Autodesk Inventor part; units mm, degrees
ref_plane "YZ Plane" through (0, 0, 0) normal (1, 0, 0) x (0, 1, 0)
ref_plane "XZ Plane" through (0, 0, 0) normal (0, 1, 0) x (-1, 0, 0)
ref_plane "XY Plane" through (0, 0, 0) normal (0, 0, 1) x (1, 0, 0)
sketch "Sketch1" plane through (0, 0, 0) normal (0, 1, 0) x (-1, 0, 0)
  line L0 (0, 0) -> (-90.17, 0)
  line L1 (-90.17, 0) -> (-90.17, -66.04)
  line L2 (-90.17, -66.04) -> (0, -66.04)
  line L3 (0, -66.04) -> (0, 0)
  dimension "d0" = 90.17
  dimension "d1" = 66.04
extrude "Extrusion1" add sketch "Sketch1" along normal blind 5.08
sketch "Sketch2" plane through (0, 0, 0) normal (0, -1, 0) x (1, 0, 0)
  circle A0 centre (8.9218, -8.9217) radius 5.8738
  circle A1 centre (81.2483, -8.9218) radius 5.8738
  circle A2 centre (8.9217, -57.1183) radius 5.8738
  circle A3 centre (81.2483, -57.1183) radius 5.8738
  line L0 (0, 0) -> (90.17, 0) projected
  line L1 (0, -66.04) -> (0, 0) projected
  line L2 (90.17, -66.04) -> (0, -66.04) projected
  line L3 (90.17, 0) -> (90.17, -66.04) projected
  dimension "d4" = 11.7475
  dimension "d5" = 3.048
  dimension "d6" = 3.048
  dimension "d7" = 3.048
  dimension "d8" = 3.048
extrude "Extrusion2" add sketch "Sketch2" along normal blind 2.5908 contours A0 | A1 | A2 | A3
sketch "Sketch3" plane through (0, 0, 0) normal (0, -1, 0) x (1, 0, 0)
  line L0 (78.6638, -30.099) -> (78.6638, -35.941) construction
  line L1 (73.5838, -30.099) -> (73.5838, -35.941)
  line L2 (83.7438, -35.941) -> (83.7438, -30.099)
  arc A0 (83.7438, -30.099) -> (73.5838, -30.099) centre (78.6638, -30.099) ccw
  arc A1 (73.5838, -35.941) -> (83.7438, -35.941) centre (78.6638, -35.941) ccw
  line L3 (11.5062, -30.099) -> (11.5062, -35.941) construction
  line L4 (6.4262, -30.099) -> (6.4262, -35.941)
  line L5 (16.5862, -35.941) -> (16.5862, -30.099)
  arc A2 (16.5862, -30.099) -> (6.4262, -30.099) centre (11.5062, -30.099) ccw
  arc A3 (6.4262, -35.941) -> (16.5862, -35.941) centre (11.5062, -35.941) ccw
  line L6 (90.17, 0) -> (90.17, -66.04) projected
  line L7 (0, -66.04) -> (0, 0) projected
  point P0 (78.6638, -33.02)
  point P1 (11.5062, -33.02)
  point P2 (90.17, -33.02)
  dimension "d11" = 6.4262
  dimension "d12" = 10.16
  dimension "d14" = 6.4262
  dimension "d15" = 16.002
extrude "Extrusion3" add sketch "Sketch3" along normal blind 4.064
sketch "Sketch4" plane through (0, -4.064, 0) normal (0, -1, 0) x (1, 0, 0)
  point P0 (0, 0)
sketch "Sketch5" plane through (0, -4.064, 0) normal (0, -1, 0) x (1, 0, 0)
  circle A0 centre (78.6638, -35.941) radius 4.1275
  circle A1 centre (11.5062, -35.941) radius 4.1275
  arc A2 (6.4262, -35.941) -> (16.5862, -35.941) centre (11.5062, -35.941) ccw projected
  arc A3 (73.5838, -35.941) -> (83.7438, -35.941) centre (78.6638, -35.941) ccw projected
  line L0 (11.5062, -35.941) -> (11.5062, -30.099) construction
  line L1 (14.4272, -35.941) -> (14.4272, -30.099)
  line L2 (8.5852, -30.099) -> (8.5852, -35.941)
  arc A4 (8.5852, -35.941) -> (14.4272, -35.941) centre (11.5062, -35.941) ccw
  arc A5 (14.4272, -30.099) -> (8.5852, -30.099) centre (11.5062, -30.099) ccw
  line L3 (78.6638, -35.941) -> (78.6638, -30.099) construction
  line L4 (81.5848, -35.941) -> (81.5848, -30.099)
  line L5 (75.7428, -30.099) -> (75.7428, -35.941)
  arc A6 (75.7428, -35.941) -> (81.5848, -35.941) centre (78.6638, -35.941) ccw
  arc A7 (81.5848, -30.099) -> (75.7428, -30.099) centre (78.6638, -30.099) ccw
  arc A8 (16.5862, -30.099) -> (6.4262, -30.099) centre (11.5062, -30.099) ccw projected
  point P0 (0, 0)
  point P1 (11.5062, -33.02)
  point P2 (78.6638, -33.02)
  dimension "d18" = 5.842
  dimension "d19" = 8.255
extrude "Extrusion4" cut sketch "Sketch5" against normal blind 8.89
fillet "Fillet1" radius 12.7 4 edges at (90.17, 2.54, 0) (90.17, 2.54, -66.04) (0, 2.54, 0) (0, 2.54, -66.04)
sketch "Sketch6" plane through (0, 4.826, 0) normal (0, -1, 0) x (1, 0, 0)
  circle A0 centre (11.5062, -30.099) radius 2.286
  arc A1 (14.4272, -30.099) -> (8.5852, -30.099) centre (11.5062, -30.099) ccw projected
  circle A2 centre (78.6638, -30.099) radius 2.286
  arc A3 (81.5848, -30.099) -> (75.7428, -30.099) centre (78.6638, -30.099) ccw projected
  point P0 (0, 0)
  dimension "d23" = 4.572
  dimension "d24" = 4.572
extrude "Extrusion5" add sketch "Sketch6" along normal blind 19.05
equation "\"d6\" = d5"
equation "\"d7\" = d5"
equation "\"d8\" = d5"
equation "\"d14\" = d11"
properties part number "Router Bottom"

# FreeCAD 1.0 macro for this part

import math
import FreeCAD as App
import Part
import Sketcher
from FreeCAD import Vector
Q = App.Units.Quantity


def edges_at(feature, points):
    """Names of the edges that pass closest to the given points."""
    edges = feature.Shape.Edges
    near = lambda p: min(range(len(edges)), key=lambda i: edges[i].distToShape(Part.Vertex(*p))[0])
    return sorted({f"Edge{near(p) + 1}" for p in points})


def add_polygon(sketch, points):
    """Adds a closed chain of lines whose ends are joined by coincident constraints."""
    first, n = sketch.GeometryCount, len(points)
    for a, b in zip(points, points[1:] + points[:1]):
        sketch.addGeometry(Part.LineSegment(App.Vector(*a, 0), App.Vector(*b, 0)), False)
    for i in range(n):
        sketch.addConstraint(Sketcher.Constraint("Coincident", first + i, 2, first + (i + 1) % n, 1))

doc = App.newDocument("Part")
body = doc.addObject("PartDesign::Body", "Body")

sketch1 = doc.addObject("Sketcher::SketchObject", "Sketch")
body.addObject(sketch1)
sketch1.AttachmentSupport = (doc.XZ_Plane, [""])
sketch1.MapMode = "FlatFace"
add_polygon(sketch1, [(0, -66), (0, 0), (90, 0), (90, -66)])
sketch1.addConstraint([
    Sketcher.Constraint("Vertical", 0),
    Sketcher.Constraint("Horizontal", 1),
    Sketcher.Constraint("Vertical", 2),
    Sketcher.Constraint("Horizontal", 3),
    Sketcher.Constraint("Coincident", 0, 2, -1, 1),
    Sketcher.Constraint("DistanceY", 0, 1, 0, 2, Q("2.6 in")),
    Sketcher.Constraint("DistanceX", 1, 1, 1, 2, Q("3.55 in")),
])
pad1 = doc.addObject("PartDesign::Pad", "Pad")
body.addObject(pad1)
pad1.Profile = sketch1
pad1.Length = Q("0.2 in")
pad1.Reversed = True

sketch2 = doc.addObject("Sketcher::SketchObject", "Sketch001")
body.addObject(sketch2)
sketch2.AttachmentSupport = (doc.XZ_Plane, [""])
sketch2.MapMode = "FlatFace"
sketch2.addGeometry([
    Part.Circle(Vector(9, -9, 0), Vector(0, 0, 1), 6),
    Part.Circle(Vector(81, -9, 0), Vector(0, 0, 1), 6),
    Part.Circle(Vector(9, -57, 0), Vector(0, 0, 1), 6),
    Part.Circle(Vector(81, -57, 0), Vector(0, 0, 1), 6),
], False)
sketch2.addConstraint([
    Sketcher.Constraint("Equal", 0, 1),
    Sketcher.Constraint("Equal", 1, 2),
    Sketcher.Constraint("Equal", 2, 3),
    Sketcher.Constraint("Horizontal", 0, 3, 1, 3),
    Sketcher.Constraint("Horizontal", 2, 3, 3, 3),
    Sketcher.Constraint("Vertical", 0, 3, 2, 3),
    Sketcher.Constraint("Vertical", 1, 3, 3, 3),
    Sketcher.Constraint("Diameter", 0, Q("0.4625 in")),
    Sketcher.Constraint("DistanceX", 0, 3, 1, 3, Q("2.8475 in")),
    Sketcher.Constraint("DistanceY", 2, 3, 0, 3, Q("1.8975 in")),
    Sketcher.Constraint("DistanceX", -1, 1, 0, 3, 8.9218),
    Sketcher.Constraint("DistanceY", 0, 3, -1, 1, 8.9217),
])
pad2 = doc.addObject("PartDesign::Pad", "Pad001")
body.addObject(pad2)
pad2.Profile = sketch2
pad2.Length = Q("0.102 in")

sketch3 = doc.addObject("Sketcher::SketchObject", "Sketch002")
body.addObject(sketch3)
sketch3.AttachmentSupport = (doc.XZ_Plane, [""])
sketch3.MapMode = "FlatFace"
sketch3.addGeometry([
    Part.ArcOfCircle(Part.Circle(Vector(79, -30, 0), Vector(0, 0, 1), 5), math.radians(0), math.radians(180)),
    Part.LineSegment(Vector(74, -30, 0), Vector(74, -36, 0)),
    Part.ArcOfCircle(Part.Circle(Vector(79, -36, 0), Vector(0, 0, 1), 5), math.radians(180), math.radians(360)),
    Part.LineSegment(Vector(84, -36, 0), Vector(84, -30, 0)),
    Part.ArcOfCircle(Part.Circle(Vector(12, -30, 0), Vector(0, 0, 1), 5), math.radians(0), math.radians(180)),
    Part.LineSegment(Vector(6, -30, 0), Vector(6, -36, 0)),
    Part.ArcOfCircle(Part.Circle(Vector(12, -36, 0), Vector(0, 0, 1), 5), math.radians(180), math.radians(360)),
    Part.LineSegment(Vector(17, -36, 0), Vector(17, -30, 0)),
], False)
sketch3.addConstraint([
    Sketcher.Constraint("Tangent", 0, 2, 1, 1),
    Sketcher.Constraint("Tangent", 1, 2, 2, 1),
    Sketcher.Constraint("Tangent", 2, 2, 3, 1),
    Sketcher.Constraint("Tangent", 3, 2, 0, 1),
    Sketcher.Constraint("Tangent", 4, 2, 5, 1),
    Sketcher.Constraint("Tangent", 5, 2, 6, 1),
    Sketcher.Constraint("Tangent", 6, 2, 7, 1),
    Sketcher.Constraint("Tangent", 7, 2, 4, 1),
    Sketcher.Constraint("Vertical", 1),
    Sketcher.Constraint("Vertical", 3),
    Sketcher.Constraint("Vertical", 5),
    Sketcher.Constraint("Vertical", 7),
    Sketcher.Constraint("Equal", 2, 4),
    Sketcher.Constraint("Horizontal", 0, 3, 4, 3),
    Sketcher.Constraint("Horizontal", 2, 3, 6, 3),
    Sketcher.Constraint("Radius", 0, Q("0.2 in")),
    Sketcher.Constraint("DistanceX", -1, 1, 4, 2, Q("0.253 in")),
    Sketcher.Constraint("DistanceY", 1, 2, 1, 1, Q("0.23 in")),
    Sketcher.Constraint("DistanceX", -1, 1, 0, 3, Q("3.097 in")),
    Sketcher.Constraint("DistanceY", 0, 3, -1, 1, Q("1.185 in")),
])
pad3 = doc.addObject("PartDesign::Pad", "Pad002")
body.addObject(pad3)
pad3.Profile = sketch3
pad3.Length = Q("0.16 in")

sketch4 = doc.addObject("Sketcher::SketchObject", "Sketch003")
body.addObject(sketch4)
sketch4.AttachmentSupport = (doc.XZ_Plane, [""])
sketch4.MapMode = "FlatFace"
sketch4.AttachmentOffset = App.Placement(Vector(0, 0, 0.16 * 25.4), App.Rotation())
sketch4.addGeometry([
    Part.ArcOfCircle(Part.Circle(Vector(78.7, -35.9, 0), Vector(0, 0, 1), 4.1), math.radians(135), math.radians(405)),
    Part.LineSegment(Vector(81.6, -33, 0), Vector(81.6, -30.1, 0)),
    Part.ArcOfCircle(Part.Circle(Vector(78.7, -30.1, 0), Vector(0, 0, 1), 2.9), math.radians(0), math.radians(180)),
    Part.LineSegment(Vector(75.7, -30.1, 0), Vector(75.7, -33, 0)),
    Part.ArcOfCircle(Part.Circle(Vector(11.5, -35.9, 0), Vector(0, 0, 1), 4.1), math.radians(135), math.radians(405)),
    Part.LineSegment(Vector(14.4, -33, 0), Vector(14.4, -30.1, 0)),
    Part.ArcOfCircle(Part.Circle(Vector(11.5, -30.1, 0), Vector(0, 0, 1), 2.9), math.radians(0), math.radians(180)),
    Part.LineSegment(Vector(8.6, -30.1, 0), Vector(8.6, -33, 0)),
], False)
sketch4.addConstraint([
    Sketcher.Constraint("Coincident", 0, 2, 1, 1),
    Sketcher.Constraint("Tangent", 1, 2, 2, 1),
    Sketcher.Constraint("Tangent", 2, 2, 3, 1),
    Sketcher.Constraint("Coincident", 3, 2, 0, 1),
    Sketcher.Constraint("Coincident", 4, 2, 5, 1),
    Sketcher.Constraint("Tangent", 5, 2, 6, 1),
    Sketcher.Constraint("Tangent", 6, 2, 7, 1),
    Sketcher.Constraint("Coincident", 7, 2, 4, 1),
    Sketcher.Constraint("Vertical", 1),
    Sketcher.Constraint("Vertical", 3),
    Sketcher.Constraint("Vertical", 5),
    Sketcher.Constraint("Vertical", 7),
    Sketcher.Constraint("Equal", 0, 4),
    Sketcher.Constraint("Equal", 2, 6),
    Sketcher.Constraint("Horizontal", 0, 3, 4, 3),
    Sketcher.Constraint("Horizontal", 2, 3, 6, 3),
    Sketcher.Constraint("Horizontal", 0, 2, 3, 2),
    Sketcher.Constraint("Horizontal", 3, 2, 4, 2),
    Sketcher.Constraint("Radius", 2, Q("0.115 in")),
    Sketcher.Constraint("Radius", 0, Q("0.1625 in")),
    Sketcher.Constraint("DistanceY", 0, 3, 2, 3, Q("0.23 in")),
    Sketcher.Constraint("DistanceX", -1, 1, 0, 3, Q("3.097 in")),
    Sketcher.Constraint("DistanceY", 0, 3, -1, 1, Q("1.415 in")),
    Sketcher.Constraint("DistanceX", -1, 1, 4, 3, Q("0.453 in")),
])
pocket1 = doc.addObject("PartDesign::Pocket", "Pocket")
body.addObject(pocket1)
pocket1.Profile = sketch4
pocket1.Length = Q("0.35 in")
doc.recompute()

fillet = doc.addObject("PartDesign::Fillet", "Fillet")
body.addObject(fillet)
fillet.Base = (pocket1, edges_at(pocket1, [
    (90.17, 2.54, 0),
    (90.17, 2.54, -66.04),
    (0, 2.54, 0),
    (0, 2.54, -66.04),
]))
fillet.Radius = Q("0.5 in")

sketch5 = doc.addObject("Sketcher::SketchObject", "Sketch004")
body.addObject(sketch5)
sketch5.AttachmentSupport = (doc.XZ_Plane, [""])
sketch5.MapMode = "FlatFace"
sketch5.AttachmentOffset = App.Placement(Vector(0, 0, -0.19 * 25.4), App.Rotation())
sketch5.addGeometry([
    Part.Circle(Vector(11.5, -30.1, 0), Vector(0, 0, 1), 2.3),
    Part.Circle(Vector(78.7, -30.1, 0), Vector(0, 0, 1), 2.3),
], False)
sketch5.addConstraint([
    Sketcher.Constraint("Equal", 0, 1),
    Sketcher.Constraint("Horizontal", 0, 3, 1, 3),
    Sketcher.Constraint("Diameter", 0, Q("0.18 in")),
    Sketcher.Constraint("DistanceX", -1, 1, 0, 3, Q("0.453 in")),
    Sketcher.Constraint("DistanceY", 0, 3, -1, 1, Q("1.185 in")),
    Sketcher.Constraint("DistanceX", -1, 1, 1, 3, Q("3.097 in")),
])
pad4 = doc.addObject("PartDesign::Pad", "Pad003")
body.addObject(pad4)
pad4.Profile = sketch5
pad4.Length = Q("0.75 in")

doc.recompute()
